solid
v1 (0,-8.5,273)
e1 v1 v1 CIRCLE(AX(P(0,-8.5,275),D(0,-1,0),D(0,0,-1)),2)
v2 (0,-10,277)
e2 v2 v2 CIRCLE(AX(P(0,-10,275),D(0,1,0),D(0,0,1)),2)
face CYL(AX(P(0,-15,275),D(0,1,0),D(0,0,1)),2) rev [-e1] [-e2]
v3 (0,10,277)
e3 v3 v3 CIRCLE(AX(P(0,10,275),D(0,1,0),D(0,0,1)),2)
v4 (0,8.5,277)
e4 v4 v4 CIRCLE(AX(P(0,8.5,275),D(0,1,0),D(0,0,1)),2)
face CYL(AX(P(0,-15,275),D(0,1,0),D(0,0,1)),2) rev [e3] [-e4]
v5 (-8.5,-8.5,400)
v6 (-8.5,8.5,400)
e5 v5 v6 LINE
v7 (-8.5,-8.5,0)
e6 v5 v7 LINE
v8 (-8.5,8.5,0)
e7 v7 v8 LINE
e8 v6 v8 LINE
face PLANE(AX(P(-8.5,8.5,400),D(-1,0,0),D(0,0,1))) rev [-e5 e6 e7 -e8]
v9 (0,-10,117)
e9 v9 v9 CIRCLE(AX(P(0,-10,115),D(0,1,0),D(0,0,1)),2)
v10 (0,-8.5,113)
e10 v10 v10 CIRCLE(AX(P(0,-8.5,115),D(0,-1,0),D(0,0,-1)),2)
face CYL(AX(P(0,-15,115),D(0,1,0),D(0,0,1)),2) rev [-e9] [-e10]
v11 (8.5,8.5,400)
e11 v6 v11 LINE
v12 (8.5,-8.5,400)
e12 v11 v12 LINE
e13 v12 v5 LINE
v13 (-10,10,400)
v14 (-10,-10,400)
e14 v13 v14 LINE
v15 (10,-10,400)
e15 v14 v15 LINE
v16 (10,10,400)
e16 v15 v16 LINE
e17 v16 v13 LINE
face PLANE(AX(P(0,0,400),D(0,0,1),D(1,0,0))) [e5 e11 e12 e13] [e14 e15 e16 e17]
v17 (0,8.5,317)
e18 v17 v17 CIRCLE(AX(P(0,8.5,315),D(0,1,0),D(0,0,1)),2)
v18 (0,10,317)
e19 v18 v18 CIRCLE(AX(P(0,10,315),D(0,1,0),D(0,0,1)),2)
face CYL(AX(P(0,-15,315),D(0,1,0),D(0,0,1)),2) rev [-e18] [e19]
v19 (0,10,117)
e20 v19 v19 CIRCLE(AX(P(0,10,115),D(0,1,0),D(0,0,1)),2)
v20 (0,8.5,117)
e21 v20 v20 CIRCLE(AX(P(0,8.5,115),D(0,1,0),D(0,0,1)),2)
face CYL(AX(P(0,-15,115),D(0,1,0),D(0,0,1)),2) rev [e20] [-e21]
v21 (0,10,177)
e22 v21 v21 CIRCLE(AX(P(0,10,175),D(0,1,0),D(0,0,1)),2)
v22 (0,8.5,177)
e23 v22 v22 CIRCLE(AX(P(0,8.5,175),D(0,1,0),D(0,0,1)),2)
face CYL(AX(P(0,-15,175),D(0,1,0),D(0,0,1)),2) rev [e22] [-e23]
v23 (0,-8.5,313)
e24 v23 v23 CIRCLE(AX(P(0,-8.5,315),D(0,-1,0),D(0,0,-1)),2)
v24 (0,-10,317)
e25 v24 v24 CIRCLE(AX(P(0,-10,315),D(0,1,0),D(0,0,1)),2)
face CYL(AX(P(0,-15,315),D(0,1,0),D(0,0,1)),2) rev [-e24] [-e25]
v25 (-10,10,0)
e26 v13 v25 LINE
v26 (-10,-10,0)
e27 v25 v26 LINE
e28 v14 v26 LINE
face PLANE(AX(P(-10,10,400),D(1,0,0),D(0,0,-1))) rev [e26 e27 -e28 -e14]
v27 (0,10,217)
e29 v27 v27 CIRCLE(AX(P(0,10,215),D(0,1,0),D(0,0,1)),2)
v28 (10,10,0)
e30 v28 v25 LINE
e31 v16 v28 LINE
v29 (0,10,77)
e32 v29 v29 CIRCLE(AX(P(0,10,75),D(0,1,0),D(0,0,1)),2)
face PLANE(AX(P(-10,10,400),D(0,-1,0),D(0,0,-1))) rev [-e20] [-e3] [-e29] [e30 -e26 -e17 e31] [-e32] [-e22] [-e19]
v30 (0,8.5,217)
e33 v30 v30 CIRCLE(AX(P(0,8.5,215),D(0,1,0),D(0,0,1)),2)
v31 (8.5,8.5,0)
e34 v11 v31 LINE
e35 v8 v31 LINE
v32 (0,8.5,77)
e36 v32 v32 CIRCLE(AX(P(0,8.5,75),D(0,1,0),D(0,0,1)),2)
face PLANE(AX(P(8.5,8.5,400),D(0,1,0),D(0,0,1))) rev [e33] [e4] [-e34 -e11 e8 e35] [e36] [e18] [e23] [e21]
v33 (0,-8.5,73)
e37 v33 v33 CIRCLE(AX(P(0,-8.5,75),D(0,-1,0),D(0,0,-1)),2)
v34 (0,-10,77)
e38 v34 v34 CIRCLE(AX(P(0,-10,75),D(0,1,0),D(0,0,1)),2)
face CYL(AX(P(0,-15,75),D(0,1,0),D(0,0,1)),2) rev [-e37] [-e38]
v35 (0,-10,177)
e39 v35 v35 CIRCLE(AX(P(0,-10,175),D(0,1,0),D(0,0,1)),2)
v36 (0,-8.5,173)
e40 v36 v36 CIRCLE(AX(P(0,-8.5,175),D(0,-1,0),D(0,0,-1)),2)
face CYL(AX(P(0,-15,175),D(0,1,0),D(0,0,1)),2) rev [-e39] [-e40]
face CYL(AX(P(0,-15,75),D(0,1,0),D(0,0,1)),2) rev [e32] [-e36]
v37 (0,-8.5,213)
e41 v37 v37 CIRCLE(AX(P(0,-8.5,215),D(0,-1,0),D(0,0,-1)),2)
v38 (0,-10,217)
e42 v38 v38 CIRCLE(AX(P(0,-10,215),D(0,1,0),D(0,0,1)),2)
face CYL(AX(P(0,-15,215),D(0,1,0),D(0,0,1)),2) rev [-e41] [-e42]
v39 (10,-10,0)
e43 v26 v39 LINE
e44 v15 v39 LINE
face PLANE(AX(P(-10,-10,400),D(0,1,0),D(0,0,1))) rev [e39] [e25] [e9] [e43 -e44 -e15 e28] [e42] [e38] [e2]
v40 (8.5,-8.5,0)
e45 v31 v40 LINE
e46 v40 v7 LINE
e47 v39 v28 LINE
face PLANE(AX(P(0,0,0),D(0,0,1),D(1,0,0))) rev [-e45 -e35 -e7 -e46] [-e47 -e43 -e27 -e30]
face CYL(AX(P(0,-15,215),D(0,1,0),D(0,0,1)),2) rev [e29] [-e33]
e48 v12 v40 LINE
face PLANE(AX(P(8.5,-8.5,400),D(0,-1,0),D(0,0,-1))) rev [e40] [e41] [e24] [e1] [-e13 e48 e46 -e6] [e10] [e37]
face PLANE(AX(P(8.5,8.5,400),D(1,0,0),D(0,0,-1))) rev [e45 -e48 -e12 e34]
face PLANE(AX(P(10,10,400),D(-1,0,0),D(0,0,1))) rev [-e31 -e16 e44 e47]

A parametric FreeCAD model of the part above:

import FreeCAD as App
import Part
import Sketcher
Q = App.Units.Quantity

doc = App.newDocument("Part")
params = doc.addObject("Spreadsheet::Sheet", "Params")
for row, (alias, value) in enumerate([
    ("sketch1_width", "20 mm"),
    ("pad1_length", "400 mm"),
    ("sketch2_width", "17 mm"),
    ("pocket1_length", "400 mm"),
    ("sketch3_diameter", "4 mm"),
    ("pocket2_length", "25 mm"),
    ("sketch4_diameter", "4 mm"),
    ("pocket3_length", "25 mm"),
    ("linearpattern_pitch", "100 mm"),
], start=1):
    params.set(f"A{row}", alias)
    params.set(f"B{row}", "=" + value)
    params.setAlias(f"B{row}", alias)

body = doc.addObject("PartDesign::Body", "Body")

sketch1 = body.newObject("Sketcher::SketchObject", "Sketch")
sketch1.AttachmentSupport = (doc.getObject("XY_Plane"), [""])
sketch1.MapMode = "FlatFace"
sketch1.addGeometry([
    Part.LineSegment(App.Vector(-10, 10, 0), App.Vector(-10, -10, 0)),
    Part.LineSegment(App.Vector(-10, -10, 0), App.Vector(10, -10, 0)),
    Part.LineSegment(App.Vector(10, -10, 0), App.Vector(10, 10, 0)),
    Part.LineSegment(App.Vector(10, 10, 0), App.Vector(-10, 10, 0)),
], False)
sketch1.addConstraint([
    Sketcher.Constraint("Coincident", 0, 2, 1, 1),
    Sketcher.Constraint("Coincident", 1, 2, 2, 1),
    Sketcher.Constraint("Coincident", 2, 2, 3, 1),
    Sketcher.Constraint("Coincident", 3, 2, 0, 1),
    Sketcher.Constraint("Vertical", 0),
    Sketcher.Constraint("Horizontal", 1),
    Sketcher.Constraint("Vertical", 2),
    Sketcher.Constraint("Horizontal", 3),
    Sketcher.Constraint("Symmetric", 0, 2, 2, 2, -1, 1),
    Sketcher.Constraint("Equal", 3, 0),
    Sketcher.Constraint("DistanceX", 1, 1, 1, 2, Q("20 mm")),
])
sketch1.setExpression("Constraints[10]", "Params.sketch1_width")
pad1 = body.newObject("PartDesign::Pad", "Pad")
pad1.Profile = sketch1
pad1.setExpression("Length", "Params.pad1_length")

sketch2 = body.newObject("Sketcher::SketchObject", "Sketch001")
sketch2.AttachmentSupport = (doc.getObject("XY_Plane"), [""])
sketch2.MapMode = "FlatFace"
sketch2.addGeometry([
    Part.LineSegment(App.Vector(8, 8, 0), App.Vector(8, -8, 0)),
    Part.LineSegment(App.Vector(8, -8, 0), App.Vector(-8, -8, 0)),
    Part.LineSegment(App.Vector(-8, -8, 0), App.Vector(-8, 8, 0)),
    Part.LineSegment(App.Vector(-8, 8, 0), App.Vector(8, 8, 0)),
], False)
sketch2.addConstraint([
    Sketcher.Constraint("Coincident", 0, 2, 1, 1),
    Sketcher.Constraint("Coincident", 1, 2, 2, 1),
    Sketcher.Constraint("Coincident", 2, 2, 3, 1),
    Sketcher.Constraint("Coincident", 3, 2, 0, 1),
    Sketcher.Constraint("Vertical", 0),
    Sketcher.Constraint("Horizontal", 1),
    Sketcher.Constraint("Vertical", 2),
    Sketcher.Constraint("Horizontal", 3),
    Sketcher.Constraint("Symmetric", 0, 2, 2, 2, -1, 1),
    Sketcher.Constraint("Equal", 3, 0),
    Sketcher.Constraint("DistanceX", 1, 2, 1, 1, Q("17 mm")),
])
sketch2.setExpression("Constraints[10]", "Params.sketch2_width")
pocket1 = body.newObject("PartDesign::Pocket", "Pocket")
pocket1.Profile = sketch2
pocket1.setExpression("Length", "Params.pocket1_length")
pocket1.Reversed = True

sketch3 = body.newObject("Sketcher::SketchObject", "Sketch002")
sketch3.AttachmentSupport = (doc.getObject("XZ_Plane"), [""])
sketch3.MapMode = "FlatFace"
sketch3.AttachmentOffset = App.Placement(App.Vector(0, 0, -10), App.Rotation())
sketch3.addGeometry(Part.Circle(App.Vector(0, 75, 0), App.Vector(0, 0, 1), 2), False)
sketch3.addConstraint([
    Sketcher.Constraint("PointOnObject", 0, 3, -2),
    Sketcher.Constraint("Diameter", 0, Q("4 mm")),
    Sketcher.Constraint("DistanceY", -1, 1, 0, 3, Q("75 mm")),
])
sketch3.setExpression("Constraints[1]", "Params.sketch3_diameter")
pocket2 = body.newObject("PartDesign::Pocket", "Pocket001")
pocket2.Profile = sketch3
pocket2.setExpression("Length", "Params.pocket2_length")
pocket2.Reversed = True

sketch4 = body.newObject("Sketcher::SketchObject", "Sketch003")
sketch4.AttachmentSupport = (doc.getObject("XZ_Plane"), [""])
sketch4.MapMode = "FlatFace"
sketch4.AttachmentOffset = App.Placement(App.Vector(0, 0, -10), App.Rotation())
sketch4.addGeometry(Part.Circle(App.Vector(0, 115, 0), App.Vector(0, 0, 1), 2), False)
sketch4.addConstraint([
    Sketcher.Constraint("PointOnObject", 0, 3, -2),
    Sketcher.Constraint("Diameter", 0, Q("4 mm")),
    Sketcher.Constraint("DistanceY", -1, 1, 0, 3, Q("115 mm")),
])
sketch4.setExpression("Constraints[1]", "Params.sketch4_diameter")
pocket3 = body.newObject("PartDesign::Pocket", "Pocket002")
pocket3.Profile = sketch4
pocket3.setExpression("Length", "Params.pocket3_length")
pocket3.Reversed = True
doc.recompute()

linearpattern = body.newObject("PartDesign::LinearPattern", "LinearPattern")
linearpattern.Originals = [pocket2, pocket3]
linearpattern.Direction = (doc.getObject("Z_Axis"), [""])
linearpattern.Mode = "offset"
linearpattern.setExpression("Offset", "Params.linearpattern_pitch")
linearpattern.Occurrences = 3
body.Tip = linearpattern

doc.recompute()
